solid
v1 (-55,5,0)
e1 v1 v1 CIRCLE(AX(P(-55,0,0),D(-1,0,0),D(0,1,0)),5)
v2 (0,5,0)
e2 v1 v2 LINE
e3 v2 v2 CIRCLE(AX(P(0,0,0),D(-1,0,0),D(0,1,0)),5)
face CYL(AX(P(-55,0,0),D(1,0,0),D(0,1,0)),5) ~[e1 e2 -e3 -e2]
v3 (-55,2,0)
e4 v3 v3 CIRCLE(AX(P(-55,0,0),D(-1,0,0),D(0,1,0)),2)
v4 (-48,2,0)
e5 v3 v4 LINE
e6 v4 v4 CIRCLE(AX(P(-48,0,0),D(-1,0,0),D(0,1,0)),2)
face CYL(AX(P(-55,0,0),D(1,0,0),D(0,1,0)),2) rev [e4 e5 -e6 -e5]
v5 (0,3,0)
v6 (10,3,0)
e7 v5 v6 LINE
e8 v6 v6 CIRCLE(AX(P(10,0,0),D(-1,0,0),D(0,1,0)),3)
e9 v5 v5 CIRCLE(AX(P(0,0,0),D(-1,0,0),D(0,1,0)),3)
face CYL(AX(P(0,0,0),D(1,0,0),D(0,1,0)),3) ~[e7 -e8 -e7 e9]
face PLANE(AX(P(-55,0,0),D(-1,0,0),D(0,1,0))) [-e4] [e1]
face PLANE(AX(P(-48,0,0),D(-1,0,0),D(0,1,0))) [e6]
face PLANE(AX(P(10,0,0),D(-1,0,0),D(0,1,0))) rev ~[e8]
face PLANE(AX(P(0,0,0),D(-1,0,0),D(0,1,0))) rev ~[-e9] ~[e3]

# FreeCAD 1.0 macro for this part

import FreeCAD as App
import Part
import Sketcher
Q = App.Units.Quantity

doc = App.newDocument("Part")
body = doc.addObject("PartDesign::Body", "Body")

# Sketch on XY plane
sketch1 = body.newObject("Sketcher::SketchObject", "Sketch")
sketch1.AttachmentSupport = (doc.getObject("XY_Plane"), [""])
sketch1.MapMode = "FlatFace"
sketch1.addGeometry([
    Part.LineSegment(App.Vector(-48, 0, 0), App.Vector(10, 0, 0)),  # 0
    Part.LineSegment(App.Vector(10, 0, 0), App.Vector(10, 3, 0)),  # 1
    Part.LineSegment(App.Vector(10, 3, 0), App.Vector(0, 3, 0)),  # 2
    Part.LineSegment(App.Vector(0, 3, 0), App.Vector(0, 5, 0)),  # 3
    Part.LineSegment(App.Vector(0, 5, 0), App.Vector(-55, 5, 0)),  # 4
    Part.LineSegment(App.Vector(-55, 5, 0), App.Vector(-55, 2, 0)),  # 5
    Part.LineSegment(App.Vector(-55, 2, 0), App.Vector(-48, 2, 0)),  # 6
    Part.LineSegment(App.Vector(-48, 2, 0), App.Vector(-48, 0, 0)),  # 7
], False)
sketch1.addConstraint([
    Sketcher.Constraint("Coincident", 0, 2, 1, 1),
    Sketcher.Constraint("Coincident", 1, 2, 2, 1),
    Sketcher.Constraint("Coincident", 2, 2, 3, 1),
    Sketcher.Constraint("Coincident", 3, 2, 4, 1),
    Sketcher.Constraint("Coincident", 4, 2, 5, 1),
    Sketcher.Constraint("Coincident", 5, 2, 6, 1),
    Sketcher.Constraint("Coincident", 6, 2, 7, 1),
    Sketcher.Constraint("Coincident", 7, 2, 0, 1),
    Sketcher.Constraint("Horizontal", 0),
    Sketcher.Constraint("Vertical", 1),
    Sketcher.Constraint("Horizontal", 2),
    Sketcher.Constraint("Vertical", 3),
    Sketcher.Constraint("Horizontal", 4),
    Sketcher.Constraint("Vertical", 5),
    Sketcher.Constraint("Horizontal", 6),
    Sketcher.Constraint("Vertical", 7),
    Sketcher.Constraint("PointOnObject", 0, 2, -1),
    Sketcher.Constraint("PointOnObject", 2, 2, -2),
    Sketcher.Constraint("Equal", 1, 5),
    Sketcher.Constraint("DistanceX", 2, 2, 2, 1, Q("10 mm")),
    Sketcher.Constraint("DistanceX", 4, 2, 4, 1, Q("55 mm")),
    Sketcher.Constraint("DistanceX", 6, 1, 6, 2, Q("7 mm")),
    Sketcher.Constraint("DistanceY", 1, 1, 1, 2, Q("3 mm")),
    Sketcher.Constraint("DistanceY", 3, 1, 3, 2, Q("2 mm")),
])
revolution = body.newObject("PartDesign::Revolution", "Revolution")
revolution.Profile = sketch1
revolution.ReferenceAxis = (sketch1, ["H_Axis"])
revolution.Angle = 360

doc.recompute()
